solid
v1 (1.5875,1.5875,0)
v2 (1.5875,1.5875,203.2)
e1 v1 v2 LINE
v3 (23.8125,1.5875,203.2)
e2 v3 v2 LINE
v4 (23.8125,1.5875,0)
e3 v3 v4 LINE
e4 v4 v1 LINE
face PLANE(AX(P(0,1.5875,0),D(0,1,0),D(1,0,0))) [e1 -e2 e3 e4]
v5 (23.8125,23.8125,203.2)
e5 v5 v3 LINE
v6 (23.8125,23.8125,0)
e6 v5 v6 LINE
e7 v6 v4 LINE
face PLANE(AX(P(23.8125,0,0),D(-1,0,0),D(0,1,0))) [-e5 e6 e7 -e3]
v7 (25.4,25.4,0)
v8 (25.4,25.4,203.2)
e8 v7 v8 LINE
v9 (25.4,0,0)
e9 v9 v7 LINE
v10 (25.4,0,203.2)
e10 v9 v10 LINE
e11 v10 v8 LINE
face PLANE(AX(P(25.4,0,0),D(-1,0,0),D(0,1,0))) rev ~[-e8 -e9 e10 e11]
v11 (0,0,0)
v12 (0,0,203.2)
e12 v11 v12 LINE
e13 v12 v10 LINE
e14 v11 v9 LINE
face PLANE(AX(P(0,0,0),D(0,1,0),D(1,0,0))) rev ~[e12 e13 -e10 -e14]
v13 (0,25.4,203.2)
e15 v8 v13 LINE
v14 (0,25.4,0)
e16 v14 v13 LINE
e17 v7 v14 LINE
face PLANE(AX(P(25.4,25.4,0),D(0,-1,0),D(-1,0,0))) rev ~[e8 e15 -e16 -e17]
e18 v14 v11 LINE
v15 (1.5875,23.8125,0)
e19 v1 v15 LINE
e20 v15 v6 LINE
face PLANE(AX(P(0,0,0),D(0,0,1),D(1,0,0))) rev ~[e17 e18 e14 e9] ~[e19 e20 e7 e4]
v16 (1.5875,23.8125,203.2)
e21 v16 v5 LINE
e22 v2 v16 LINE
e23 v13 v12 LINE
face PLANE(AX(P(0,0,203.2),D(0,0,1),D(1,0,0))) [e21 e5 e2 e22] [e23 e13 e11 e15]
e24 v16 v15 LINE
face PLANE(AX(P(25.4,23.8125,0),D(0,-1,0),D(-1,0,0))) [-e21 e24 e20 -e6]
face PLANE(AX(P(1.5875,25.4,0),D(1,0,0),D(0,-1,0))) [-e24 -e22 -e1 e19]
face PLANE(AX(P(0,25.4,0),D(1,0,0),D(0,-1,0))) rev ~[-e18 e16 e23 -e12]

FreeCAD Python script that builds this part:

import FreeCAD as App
import Part
import Sketcher
Q = App.Units.Quantity


def faces_at(feature, points):
    """Names of the faces that lie closest to the given points."""
    faces = feature.Shape.Faces
    near = lambda p: min(range(len(faces)), key=lambda i: faces[i].distToShape(Part.Vertex(*p))[0])
    return sorted({f"Face{near(p) + 1}" for p in points})


def add_polygon(sketch, points):
    """Adds a closed chain of lines whose ends are joined by coincident constraints."""
    first, n = sketch.GeometryCount, len(points)
    for a, b in zip(points, points[1:] + points[:1]):
        sketch.addGeometry(Part.LineSegment(App.Vector(*a, 0), App.Vector(*b, 0)), False)
    for i in range(n):
        sketch.addConstraint(Sketcher.Constraint("Coincident", first + i, 2, first + (i + 1) % n, 1))

doc = App.newDocument("Part")
body = doc.addObject("PartDesign::Body", "Body")

sketch1 = body.newObject("Sketcher::SketchObject", "Sketch")
sketch1.AttachmentSupport = (doc.getObject("XY_Plane"), [""])
sketch1.MapMode = "FlatFace"
add_polygon(sketch1, [(0, 25), (0, 0), (25, 0), (25, 25)])
sketch1.addConstraint([
    Sketcher.Constraint("Vertical", 0),
    Sketcher.Constraint("Horizontal", 1),
    Sketcher.Constraint("Vertical", 2),
    Sketcher.Constraint("Horizontal", 3),
    Sketcher.Constraint("Coincident", 0, 2, -1, 1),
    Sketcher.Constraint("Equal", 3, 0),
    Sketcher.Constraint("DistanceX", 1, 1, 1, 2, Q("1 in")),
])
pad1 = body.newObject("PartDesign::Pad", "Pad")
pad1.Profile = sketch1
pad1.Length = Q("8 in")
doc.recompute()

thickness = body.newObject("PartDesign::Thickness", "Thickness")
thickness.Base = (pad1, faces_at(pad1, [(8.467, 16.933, 0), (8.467, 16.933, 203.2)]))
thickness.Value = Q("0.0625 in")
thickness.Reversed = True
thickness.Join = "Intersection"

doc.recompute()
